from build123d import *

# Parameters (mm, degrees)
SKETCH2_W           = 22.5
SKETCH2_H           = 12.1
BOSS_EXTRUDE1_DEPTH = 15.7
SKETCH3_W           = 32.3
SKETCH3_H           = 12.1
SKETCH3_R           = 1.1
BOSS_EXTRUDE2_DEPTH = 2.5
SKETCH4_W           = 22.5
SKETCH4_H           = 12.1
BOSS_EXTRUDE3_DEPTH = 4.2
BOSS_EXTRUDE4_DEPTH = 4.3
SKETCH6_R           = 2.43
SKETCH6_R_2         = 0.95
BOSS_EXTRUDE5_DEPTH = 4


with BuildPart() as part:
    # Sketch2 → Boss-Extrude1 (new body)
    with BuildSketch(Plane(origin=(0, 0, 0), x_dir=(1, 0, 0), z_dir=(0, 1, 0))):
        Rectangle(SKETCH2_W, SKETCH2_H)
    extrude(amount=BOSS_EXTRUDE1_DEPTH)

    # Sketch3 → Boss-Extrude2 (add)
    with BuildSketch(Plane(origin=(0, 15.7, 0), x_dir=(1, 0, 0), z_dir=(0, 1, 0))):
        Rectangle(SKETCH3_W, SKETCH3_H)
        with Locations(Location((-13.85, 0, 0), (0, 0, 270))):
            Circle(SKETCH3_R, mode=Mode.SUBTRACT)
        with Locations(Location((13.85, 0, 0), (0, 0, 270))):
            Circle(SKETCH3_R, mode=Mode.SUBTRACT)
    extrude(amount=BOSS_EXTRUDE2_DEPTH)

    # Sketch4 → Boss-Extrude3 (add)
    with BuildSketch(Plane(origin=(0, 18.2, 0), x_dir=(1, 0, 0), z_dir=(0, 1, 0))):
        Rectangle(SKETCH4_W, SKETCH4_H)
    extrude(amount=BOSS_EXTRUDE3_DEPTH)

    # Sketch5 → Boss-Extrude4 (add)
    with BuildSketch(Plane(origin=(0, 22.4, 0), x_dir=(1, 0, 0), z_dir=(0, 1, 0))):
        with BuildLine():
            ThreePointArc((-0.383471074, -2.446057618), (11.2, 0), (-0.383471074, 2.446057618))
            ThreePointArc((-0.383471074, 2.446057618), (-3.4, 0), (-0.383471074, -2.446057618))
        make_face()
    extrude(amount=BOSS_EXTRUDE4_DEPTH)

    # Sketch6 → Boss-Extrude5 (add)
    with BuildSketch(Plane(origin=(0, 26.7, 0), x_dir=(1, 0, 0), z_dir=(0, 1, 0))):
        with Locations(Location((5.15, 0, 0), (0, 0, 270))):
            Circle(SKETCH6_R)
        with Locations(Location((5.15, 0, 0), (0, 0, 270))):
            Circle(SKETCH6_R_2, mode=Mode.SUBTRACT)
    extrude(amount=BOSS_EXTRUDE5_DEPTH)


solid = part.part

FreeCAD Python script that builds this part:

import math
import FreeCAD as App
import Part
import Sketcher
from FreeCAD import Vector
Q = App.Units.Quantity


def add_polygon(sketch, points):
    """Adds a closed chain of lines whose ends are joined by coincident constraints."""
    first, n = sketch.GeometryCount, len(points)
    for a, b in zip(points, points[1:] + points[:1]):
        sketch.addGeometry(Part.LineSegment(App.Vector(*a, 0), App.Vector(*b, 0)), False)
    for i in range(n):
        sketch.addConstraint(Sketcher.Constraint("Coincident", first + i, 2, first + (i + 1) % n, 1))

doc = App.newDocument("Part")
body = doc.addObject("PartDesign::Body", "Body")

# Sketch on XZ plane
sketch1 = body.newObject("Sketcher::SketchObject", "Sketch")
sketch1.AttachmentSupport = (doc.getObject("XZ_Plane"), [""])
sketch1.MapMode = "FlatFace"
add_polygon(sketch1, [(-11, -6), (-11, 6), (11, 6), (11, -6)])  # lines 0-3
sketch1.addConstraint([
    Sketcher.Constraint("Vertical", 0),
    Sketcher.Constraint("Horizontal", 1),
    Sketcher.Constraint("Vertical", 2),
    Sketcher.Constraint("Horizontal", 3),
    Sketcher.Constraint("Symmetric", 0, 2, 2, 2, -1, 1),
    Sketcher.Constraint("DistanceX", 1, 1, 1, 2, Q("22.5 mm")),
    Sketcher.Constraint("DistanceY", 0, 1, 0, 2, Q("12.1 mm")),
])
pad1 = body.newObject("PartDesign::Pad", "Pad")
pad1.Profile = sketch1
pad1.Length = 15.7
pad1.Reversed = True

# Sketch on XZ plane
sketch2 = body.newObject("Sketcher::SketchObject", "Sketch001")
sketch2.AttachmentSupport = (doc.getObject("XZ_Plane"), [""])
sketch2.MapMode = "FlatFace"
sketch2.AttachmentOffset = App.Placement(Vector(0, 0, -15.7), App.Rotation())
add_polygon(sketch2, [(-16.1, -6), (-16.1, 6), (16.1, 6), (16.1, -6)])  # lines 0-3
sketch2.addGeometry(Part.Circle(Vector(-13.8, 0, 0), Vector(0, 0, 1), 1.1), False)  # 4
sketch2.addGeometry(Part.Circle(Vector(13.8, 0, 0), Vector(0, 0, 1), 1.1), False)  # 5
sketch2.addConstraint([
    Sketcher.Constraint("Vertical", 0),
    Sketcher.Constraint("Horizontal", 1),
    Sketcher.Constraint("Vertical", 2),
    Sketcher.Constraint("Horizontal", 3),
    Sketcher.Constraint("Equal", 4, 5),
    Sketcher.Constraint("Symmetric", 4, 3, 5, 3, -1, 1),
    Sketcher.Constraint("Symmetric", 0, 2, 2, 2, -1, 1),
    Sketcher.Constraint("PointOnObject", 4, 3, -1),
    Sketcher.Constraint("Diameter", 4, Q("2.2 mm")),
    Sketcher.Constraint("DistanceX", 1, 1, 1, 2, Q("32.3 mm")),
    Sketcher.Constraint("DistanceY", 0, 1, 0, 2, Q("12.1 mm")),
    Sketcher.Constraint("DistanceX", 0, 2, 5, 3, Q("30 mm")),
])
pad2 = body.newObject("PartDesign::Pad", "Pad001")
pad2.Profile = sketch2
pad2.Length = 2.5
pad2.Reversed = True

# Sketch on XZ plane
sketch3 = body.newObject("Sketcher::SketchObject", "Sketch002")
sketch3.AttachmentSupport = (doc.getObject("XZ_Plane"), [""])
sketch3.MapMode = "FlatFace"
sketch3.AttachmentOffset = App.Placement(Vector(0, 0, -18.2), App.Rotation())
add_polygon(sketch3, [(-11, -6), (-11, 6), (11, 6), (11, -6)])  # lines 0-3
sketch3.addConstraint([
    Sketcher.Constraint("Vertical", 0),
    Sketcher.Constraint("Horizontal", 1),
    Sketcher.Constraint("Vertical", 2),
    Sketcher.Constraint("Horizontal", 3),
    Sketcher.Constraint("Symmetric", 0, 2, 2, 2, -1, 1),
    Sketcher.Constraint("DistanceX", 1, 1, 1, 2, Q("22.5 mm")),
    Sketcher.Constraint("DistanceY", 0, 1, 0, 2, Q("12.1 mm")),
])
pad3 = body.newObject("PartDesign::Pad", "Pad002")
pad3.Profile = sketch3
pad3.Length = 4.2
pad3.Reversed = True

# Sketch on XZ plane
sketch4 = body.newObject("Sketcher::SketchObject", "Sketch003")
sketch4.AttachmentSupport = (doc.getObject("XZ_Plane"), [""])
sketch4.MapMode = "FlatFace"
sketch4.AttachmentOffset = App.Placement(Vector(0, 0, -22.4), App.Rotation())
sketch4.addGeometry([
    Part.ArcOfCircle(Part.Circle(Vector(5.2, 0, 0), Vector(0, 0, 1), 6), math.radians(-156), math.radians(156)),
    Part.ArcOfCircle(Part.Circle(Vector(-0.9, 0, 0), Vector(0, 0, 1), 2.5), math.radians(78), math.radians(282)),
], False)
sketch4.addConstraint([
    Sketcher.Constraint("Coincident", 0, 1, 1, 2),
    Sketcher.Constraint("Coincident", 1, 1, 0, 2),
    Sketcher.Constraint("Symmetric", 0, 1, 1, 1, -1),
    Sketcher.Constraint("Radius", 1, Q("2.5 mm")),
    Sketcher.Constraint("Radius", 0, Q("6.05 mm")),
    Sketcher.Constraint("DistanceX", 1, 3, -1, 1, Q("0.9 mm")),
    Sketcher.Constraint("DistanceX", -1, 1, 0, 3, Q("5.15 mm")),
])
pad4 = body.newObject("PartDesign::Pad", "Pad003")
pad4.Profile = sketch4
pad4.Length = 4.3
pad4.Reversed = True

# Sketch on XZ plane
sketch5 = body.newObject("Sketcher::SketchObject", "Sketch004")
sketch5.AttachmentSupport = (doc.getObject("XZ_Plane"), [""])
sketch5.MapMode = "FlatFace"
sketch5.AttachmentOffset = App.Placement(Vector(0, 0, -26.7), App.Rotation())
sketch5.addGeometry([
    Part.Circle(Vector(5.2, 0, 0), Vector(0, 0, 1), 2.4),
    Part.Circle(Vector(5.2, 0, 0), Vector(0, 0, 1), 0.9),
], False)
sketch5.addConstraint([
    Sketcher.Constraint("Coincident", 1, 3, 0, 3),
    Sketcher.Constraint("PointOnObject", 0, 3, -1),
    Sketcher.Constraint("Diameter", 1, Q("1.9 mm")),
    Sketcher.Constraint("Diameter", 0, Q("4.86 mm")),
    Sketcher.Constraint("DistanceX", -1, 1, 0, 3, Q("5.15 mm")),
])
pad5 = body.newObject("PartDesign::Pad", "Pad004")
pad5.Profile = sketch5
pad5.Length = 4
pad5.Reversed = True

doc.recompute()
